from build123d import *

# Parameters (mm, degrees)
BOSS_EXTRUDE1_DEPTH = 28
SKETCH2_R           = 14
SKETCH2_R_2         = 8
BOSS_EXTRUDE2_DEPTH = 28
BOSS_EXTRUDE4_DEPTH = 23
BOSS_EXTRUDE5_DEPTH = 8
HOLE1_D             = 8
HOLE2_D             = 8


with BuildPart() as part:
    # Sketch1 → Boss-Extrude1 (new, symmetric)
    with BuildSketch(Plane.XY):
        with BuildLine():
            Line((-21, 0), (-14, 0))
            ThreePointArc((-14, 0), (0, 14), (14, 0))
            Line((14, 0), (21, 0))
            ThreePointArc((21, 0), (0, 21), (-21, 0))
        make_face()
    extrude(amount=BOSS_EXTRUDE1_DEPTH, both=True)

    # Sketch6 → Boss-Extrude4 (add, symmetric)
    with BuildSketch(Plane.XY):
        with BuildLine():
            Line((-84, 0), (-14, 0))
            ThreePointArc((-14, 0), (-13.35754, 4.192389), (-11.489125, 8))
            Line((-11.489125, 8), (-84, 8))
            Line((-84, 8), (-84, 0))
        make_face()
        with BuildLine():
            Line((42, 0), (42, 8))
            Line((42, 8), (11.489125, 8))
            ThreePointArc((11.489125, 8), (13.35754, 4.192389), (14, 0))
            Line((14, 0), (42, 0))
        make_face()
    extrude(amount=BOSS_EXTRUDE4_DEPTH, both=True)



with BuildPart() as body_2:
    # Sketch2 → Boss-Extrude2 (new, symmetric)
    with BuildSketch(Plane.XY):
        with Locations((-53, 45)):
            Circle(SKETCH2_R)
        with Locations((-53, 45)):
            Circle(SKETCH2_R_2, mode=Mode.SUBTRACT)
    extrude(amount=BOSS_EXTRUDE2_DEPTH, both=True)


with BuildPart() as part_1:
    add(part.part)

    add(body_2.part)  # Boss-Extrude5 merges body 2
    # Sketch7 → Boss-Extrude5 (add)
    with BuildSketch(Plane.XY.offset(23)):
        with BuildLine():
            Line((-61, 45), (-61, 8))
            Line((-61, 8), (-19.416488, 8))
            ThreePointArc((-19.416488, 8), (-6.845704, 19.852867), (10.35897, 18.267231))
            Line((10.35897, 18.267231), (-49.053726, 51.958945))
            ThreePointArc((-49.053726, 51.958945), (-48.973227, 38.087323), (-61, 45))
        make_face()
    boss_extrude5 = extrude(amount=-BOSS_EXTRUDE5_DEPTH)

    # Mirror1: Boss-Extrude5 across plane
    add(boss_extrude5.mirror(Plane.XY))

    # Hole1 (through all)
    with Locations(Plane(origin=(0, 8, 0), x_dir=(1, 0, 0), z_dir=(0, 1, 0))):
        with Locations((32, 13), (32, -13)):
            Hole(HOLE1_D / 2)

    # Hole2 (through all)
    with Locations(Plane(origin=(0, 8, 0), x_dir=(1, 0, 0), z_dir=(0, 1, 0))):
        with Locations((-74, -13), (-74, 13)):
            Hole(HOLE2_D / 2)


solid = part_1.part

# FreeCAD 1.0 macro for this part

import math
import FreeCAD as App
import Part
import Sketcher

V = App.Vector

doc = App.newDocument("Part")
body = doc.addObject("PartDesign::Body", "Body")

# Sketch on XY plane
sketch1 = body.newObject("Sketcher::SketchObject", "Sketch")
sketch1.AttachmentSupport = (doc.getObject("XY_Plane"), [""])
sketch1.MapMode = "FlatFace"
sketch1.addGeometry(Part.LineSegment(V(-21, 0, 0), V(-14, 0, 0)), False)
sketch1.addGeometry(Part.ArcOfCircle(Part.Circle(V(0, 0, 0), V(0, 0, 1), 14), math.radians(0), math.radians(180)), False)
sketch1.addGeometry(Part.LineSegment(V(14, 0, 0), V(21, 0, 0)), False)
sketch1.addGeometry(Part.ArcOfCircle(Part.Circle(V(0, 0, 0), V(0, 0, 1), 21), math.radians(0), math.radians(180)), False)
sketch1.addConstraint(Sketcher.Constraint("Coincident", 0, 2, 1, 2))
sketch1.addConstraint(Sketcher.Constraint("Coincident", 1, 1, 2, 1))
sketch1.addConstraint(Sketcher.Constraint("Coincident", 2, 2, 3, 1))
sketch1.addConstraint(Sketcher.Constraint("Coincident", 3, 2, 0, 1))
sketch1.addConstraint(Sketcher.Constraint("Horizontal", 0))
sketch1.addConstraint(Sketcher.Constraint("Horizontal", 2))
sketch1.addConstraint(Sketcher.Constraint("Coincident", 1, 3, -1, 1))
sketch1.addConstraint(Sketcher.Constraint("Coincident", 3, 3, -1, 1))
sketch1.addConstraint(Sketcher.Constraint("PointOnObject", 0, 2, -1))
sketch1.addConstraint(Sketcher.Constraint("PointOnObject", 1, 1, -1))
sketch1.addConstraint(Sketcher.Constraint("Radius", 1, 14.0))
sketch1.addConstraint(Sketcher.Constraint("Radius", 3, 21.0))
pad1 = body.newObject("PartDesign::Pad", "Pad")
pad1.Profile = sketch1
pad1.Length = 56
pad1.Midplane = True

# Sketch on XY plane
sketch2 = body.newObject("Sketcher::SketchObject", "Sketch001")
sketch2.AttachmentSupport = (doc.getObject("XY_Plane"), [""])
sketch2.MapMode = "FlatFace"
sketch2.addGeometry(Part.LineSegment(V(-84, 0, 0), V(-14, 0, 0)), False)
sketch2.addGeometry(Part.ArcOfCircle(Part.Circle(V(0, 0, 0), V(0, 0, 1), 14), math.radians(145), math.radians(180)), False)
sketch2.addGeometry(Part.LineSegment(V(-11, 8, 0), V(-84, 8, 0)), False)
sketch2.addGeometry(Part.LineSegment(V(-84, 8, 0), V(-84, 0, 0)), False)
sketch2.addGeometry(Part.LineSegment(V(42, 0, 0), V(42, 8, 0)), False)
sketch2.addGeometry(Part.LineSegment(V(42, 8, 0), V(11, 8, 0)), False)
sketch2.addGeometry(Part.ArcOfCircle(Part.Circle(V(0, 0, 0), V(0, 0, 1), 14), math.radians(0), math.radians(35)), False)
sketch2.addGeometry(Part.LineSegment(V(14, 0, 0), V(42, 0, 0)), False)
sketch2.addConstraint(Sketcher.Constraint("Coincident", 0, 2, 1, 2))
sketch2.addConstraint(Sketcher.Constraint("Coincident", 1, 1, 2, 1))
sketch2.addConstraint(Sketcher.Constraint("Coincident", 2, 2, 3, 1))
sketch2.addConstraint(Sketcher.Constraint("Coincident", 3, 2, 0, 1))
sketch2.addConstraint(Sketcher.Constraint("Coincident", 4, 2, 5, 1))
sketch2.addConstraint(Sketcher.Constraint("Coincident", 5, 2, 6, 2))
sketch2.addConstraint(Sketcher.Constraint("Coincident", 6, 1, 7, 1))
sketch2.addConstraint(Sketcher.Constraint("Coincident", 7, 2, 4, 1))
sketch2.addConstraint(Sketcher.Constraint("Horizontal", 0))
sketch2.addConstraint(Sketcher.Constraint("Horizontal", 2))
sketch2.addConstraint(Sketcher.Constraint("Vertical", 3))
sketch2.addConstraint(Sketcher.Constraint("Vertical", 4))
sketch2.addConstraint(Sketcher.Constraint("Horizontal", 5))
sketch2.addConstraint(Sketcher.Constraint("Horizontal", 7))
sketch2.addConstraint(Sketcher.Constraint("Coincident", 1, 3, -1, 1))
sketch2.addConstraint(Sketcher.Constraint("Coincident", 6, 3, -1, 1))
sketch2.addConstraint(Sketcher.Constraint("Equal", 1, 6))
sketch2.addConstraint(Sketcher.Constraint("PointOnObject", 0, 2, -1))
sketch2.addConstraint(Sketcher.Constraint("PointOnObject", 6, 1, -1))
sketch2.addConstraint(Sketcher.Constraint("Horizontal", 2, 2, 4, 2))
sketch2.addConstraint(Sketcher.Constraint("DistanceX", 0, 1, 0, 2, 70.0))
sketch2.addConstraint(Sketcher.Constraint("DistanceX", 7, 1, 7, 2, 28.0))
sketch2.addConstraint(Sketcher.Constraint("DistanceY", 3, 2, 3, 1, 8.0))
sketch2.addConstraint(Sketcher.Constraint("DistanceX", 0, 2, -1, 1, 14.0))
pad2 = body.newObject("PartDesign::Pad", "Pad001")
pad2.Profile = sketch2
pad2.Length = 46
pad2.Midplane = True
body2 = doc.addObject("PartDesign::Body", "Body001")

# Sketch on XY plane
sketch3 = body2.newObject("Sketcher::SketchObject", "Sketch002")
sketch3.AttachmentSupport = (doc.getObject("XY_Plane001"), [""])
sketch3.MapMode = "FlatFace"
sketch3.addGeometry(Part.Circle(V(-53, 45, 0), V(0, 0, 1), 14), False)
sketch3.addGeometry(Part.Circle(V(-53, 45, 0), V(0, 0, 1), 8), False)
sketch3.addConstraint(Sketcher.Constraint("Coincident", 1, 3, 0, 3))
sketch3.addConstraint(Sketcher.Constraint("Diameter", 0, 28.0))
sketch3.addConstraint(Sketcher.Constraint("Diameter", 1, 16.0))
sketch3.addConstraint(Sketcher.Constraint("DistanceX", 0, 3, -1, 1, 53.0))
sketch3.addConstraint(Sketcher.Constraint("DistanceY", -1, 1, 0, 3, 45.0))
pad3 = body2.newObject("PartDesign::Pad", "Pad002")
pad3.Profile = sketch3
pad3.Length = 56
pad3.Midplane = True
body.AllowCompound = True
doc.recompute()

boolean = body.newObject("PartDesign::Boolean", "Boolean")
boolean.Type = "Fuse"
boolean.addObjects([body2])

# Sketch on XY plane
sketch4 = body.newObject("Sketcher::SketchObject", "Sketch003")
sketch4.AttachmentSupport = (doc.getObject("XY_Plane"), [""])
sketch4.MapMode = "FlatFace"
sketch4.AttachmentOffset = App.Placement(V(0, 0, 23), App.Rotation())
sketch4.addGeometry(Part.LineSegment(V(-61, 45, 0), V(-61, 8, 0)), False)
sketch4.addGeometry(Part.LineSegment(V(-61, 8, 0), V(-19, 8, 0)), False)
sketch4.addGeometry(Part.ArcOfCircle(Part.Circle(V(0, 0, 0), V(0, 0, 1), 21), math.radians(60), math.radians(158)), False)
sketch4.addGeometry(Part.LineSegment(V(10, 18, 0), V(-49, 52, 0)), False)
sketch4.addGeometry(Part.ArcOfCircle(Part.Circle(V(-53, 45, 0), V(0, 0, 1), 8), math.radians(180), math.radians(420)), False)
sketch4.addConstraint(Sketcher.Constraint("Coincident", 0, 2, 1, 1))
sketch4.addConstraint(Sketcher.Constraint("Coincident", 1, 2, 2, 2))
sketch4.addConstraint(Sketcher.Constraint("Tangent", 2, 1, 3, 1))
sketch4.addConstraint(Sketcher.Constraint("Tangent", 3, 2, 4, 2))
sketch4.addConstraint(Sketcher.Constraint("Tangent", 4, 1, 0, 1))
sketch4.addConstraint(Sketcher.Constraint("Vertical", 0))
sketch4.addConstraint(Sketcher.Constraint("Horizontal", 1))
sketch4.addConstraint(Sketcher.Constraint("Coincident", 2, 3, -1, 1))
sketch4.addConstraint(Sketcher.Constraint("Radius", 2, 21.0))
sketch4.addConstraint(Sketcher.Constraint("Radius", 4, 8.0))
sketch4.addConstraint(Sketcher.Constraint("DistanceY", 0, 2, 0, 1, 37.0))
sketch4.addConstraint(Sketcher.Constraint("DistanceX", 4, 3, -1, 1, 53.0))
sketch4.addConstraint(Sketcher.Constraint("DistanceY", -1, 1, 4, 3, 45.0))
pad4 = body.newObject("PartDesign::Pad", "Pad003")
pad4.Profile = sketch4
pad4.Length = 8
pad4.Reversed = True
doc.recompute()

mirrored = body.newObject("PartDesign::Mirrored", "Mirrored")
mirrored.Originals = [pad4]
mirrored.MirrorPlane = (doc.getObject("XY_Plane"), [""])
body.Tip = mirrored

# Sketch on XZ plane
sketch5 = body.newObject("Sketcher::SketchObject", "Sketch004")
sketch5.AttachmentSupport = (doc.getObject("XZ_Plane"), [""])
sketch5.MapMode = "FlatFace"
sketch5.AttachmentOffset = App.Placement(V(0, 0, -8), App.Rotation())
sketch5.addGeometry(Part.Circle(V(32, -13, 0), V(0, 0, 1), 4), False)
sketch5.addGeometry(Part.Circle(V(32, 13, 0), V(0, 0, 1), 4), False)
sketch5.addConstraint(Sketcher.Constraint("Equal", 0, 1))
sketch5.addConstraint(Sketcher.Constraint("Symmetric", 0, 3, 1, 3, -1))
sketch5.addConstraint(Sketcher.Constraint("Diameter", 0, 8.0))
sketch5.addConstraint(Sketcher.Constraint("DistanceX", -1, 1, 0, 3, 32.0))
sketch5.addConstraint(Sketcher.Constraint("DistanceY", 0, 3, -1, 1, 13.0))
doc.recompute()
hole = body.newObject("PartDesign::Hole", "Hole")
hole.Profile = sketch5
hole.ThreadType = "None"
hole.Diameter = 8
hole.DepthType = "ThroughAll"
hole.Reversed = True

# Sketch on XZ plane
sketch6 = body.newObject("Sketcher::SketchObject", "Sketch005")
sketch6.AttachmentSupport = (doc.getObject("XZ_Plane"), [""])
sketch6.MapMode = "FlatFace"
sketch6.AttachmentOffset = App.Placement(V(0, 0, -8), App.Rotation())
sketch6.addGeometry(Part.Circle(V(-74, 13, 0), V(0, 0, 1), 4), False)
sketch6.addGeometry(Part.Circle(V(-74, -13, 0), V(0, 0, 1), 4), False)
sketch6.addConstraint(Sketcher.Constraint("Equal", 0, 1))
sketch6.addConstraint(Sketcher.Constraint("Symmetric", 0, 3, 1, 3, -1))
sketch6.addConstraint(Sketcher.Constraint("Diameter", 0, 8.0))
sketch6.addConstraint(Sketcher.Constraint("DistanceX", 0, 3, -1, 1, 74.0))
sketch6.addConstraint(Sketcher.Constraint("DistanceY", -1, 1, 0, 3, 13.0))
doc.recompute()
hole2 = body.newObject("PartDesign::Hole", "Hole001")
hole2.Profile = sketch6
hole2.ThreadType = "None"
hole2.Diameter = 8
hole2.DepthType = "ThroughAll"
hole2.Reversed = True

doc.recompute()
